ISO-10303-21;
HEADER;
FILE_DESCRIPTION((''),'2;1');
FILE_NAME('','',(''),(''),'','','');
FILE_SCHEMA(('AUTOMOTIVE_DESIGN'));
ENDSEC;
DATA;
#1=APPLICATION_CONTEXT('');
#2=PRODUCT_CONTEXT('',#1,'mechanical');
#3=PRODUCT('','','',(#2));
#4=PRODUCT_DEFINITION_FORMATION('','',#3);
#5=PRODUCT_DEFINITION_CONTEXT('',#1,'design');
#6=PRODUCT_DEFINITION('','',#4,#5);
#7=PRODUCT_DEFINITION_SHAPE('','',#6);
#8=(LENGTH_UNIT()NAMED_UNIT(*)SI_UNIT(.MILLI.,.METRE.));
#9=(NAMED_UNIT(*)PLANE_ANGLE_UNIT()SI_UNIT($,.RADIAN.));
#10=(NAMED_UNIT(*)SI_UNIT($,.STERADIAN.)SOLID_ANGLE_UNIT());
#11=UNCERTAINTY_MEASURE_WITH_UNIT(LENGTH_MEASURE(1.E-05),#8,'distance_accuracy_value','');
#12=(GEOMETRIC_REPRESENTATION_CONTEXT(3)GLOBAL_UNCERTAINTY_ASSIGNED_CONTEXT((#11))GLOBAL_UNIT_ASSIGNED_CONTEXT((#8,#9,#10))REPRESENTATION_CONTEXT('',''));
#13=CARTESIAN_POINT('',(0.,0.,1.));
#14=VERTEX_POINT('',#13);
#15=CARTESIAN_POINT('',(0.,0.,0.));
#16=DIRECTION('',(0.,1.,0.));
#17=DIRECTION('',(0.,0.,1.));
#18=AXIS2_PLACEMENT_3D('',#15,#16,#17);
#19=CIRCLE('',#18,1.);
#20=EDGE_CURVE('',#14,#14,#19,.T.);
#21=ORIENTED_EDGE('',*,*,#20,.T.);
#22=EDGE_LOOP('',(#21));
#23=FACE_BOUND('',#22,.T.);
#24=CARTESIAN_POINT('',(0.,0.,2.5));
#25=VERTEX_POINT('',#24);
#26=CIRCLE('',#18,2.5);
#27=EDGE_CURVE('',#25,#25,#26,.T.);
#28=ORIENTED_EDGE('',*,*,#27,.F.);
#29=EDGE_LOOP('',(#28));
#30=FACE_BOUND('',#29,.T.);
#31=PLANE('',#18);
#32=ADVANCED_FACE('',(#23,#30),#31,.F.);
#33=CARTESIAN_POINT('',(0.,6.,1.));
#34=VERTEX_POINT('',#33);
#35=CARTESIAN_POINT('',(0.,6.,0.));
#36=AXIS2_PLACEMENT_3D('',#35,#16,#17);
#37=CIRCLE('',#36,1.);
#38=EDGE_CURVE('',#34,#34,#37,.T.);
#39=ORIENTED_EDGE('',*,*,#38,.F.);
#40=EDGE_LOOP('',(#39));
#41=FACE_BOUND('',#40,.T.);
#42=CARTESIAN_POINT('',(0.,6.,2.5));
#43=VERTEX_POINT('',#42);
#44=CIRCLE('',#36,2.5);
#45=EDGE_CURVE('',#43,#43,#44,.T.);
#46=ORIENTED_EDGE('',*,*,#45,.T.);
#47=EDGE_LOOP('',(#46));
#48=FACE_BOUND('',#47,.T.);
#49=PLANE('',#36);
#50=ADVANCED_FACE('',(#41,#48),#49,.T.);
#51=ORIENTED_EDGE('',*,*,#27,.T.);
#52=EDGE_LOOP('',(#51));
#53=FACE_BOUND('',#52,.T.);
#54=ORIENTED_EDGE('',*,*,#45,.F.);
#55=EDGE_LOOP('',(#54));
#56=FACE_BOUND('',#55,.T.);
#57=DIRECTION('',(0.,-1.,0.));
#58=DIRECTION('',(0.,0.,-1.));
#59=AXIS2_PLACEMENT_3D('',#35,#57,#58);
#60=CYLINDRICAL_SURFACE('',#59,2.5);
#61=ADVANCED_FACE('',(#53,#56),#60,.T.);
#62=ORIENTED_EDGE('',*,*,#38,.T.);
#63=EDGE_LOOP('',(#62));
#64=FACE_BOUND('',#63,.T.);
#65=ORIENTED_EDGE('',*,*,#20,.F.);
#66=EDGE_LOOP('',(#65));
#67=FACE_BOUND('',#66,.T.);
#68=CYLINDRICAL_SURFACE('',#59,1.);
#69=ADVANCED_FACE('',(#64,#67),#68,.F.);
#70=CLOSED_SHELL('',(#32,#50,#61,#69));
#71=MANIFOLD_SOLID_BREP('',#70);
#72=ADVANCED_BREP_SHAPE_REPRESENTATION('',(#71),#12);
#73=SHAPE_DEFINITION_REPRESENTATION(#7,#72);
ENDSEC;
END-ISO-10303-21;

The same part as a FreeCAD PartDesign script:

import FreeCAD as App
import Part
import Sketcher
from FreeCAD import Vector

doc = App.newDocument("Part")
params = doc.addObject("Spreadsheet::Sheet", "Params")
for row, (alias, value) in enumerate([
    ("sketch1_diameter", "5 mm"),
    ("sketch1_diameter2", "2 mm"),
    ("pad1_length", "6 mm"),
], start=1):
    params.set(f"A{row}", alias)
    params.set(f"B{row}", "=" + value)
    params.setAlias(f"B{row}", alias)

body = doc.addObject("PartDesign::Body", "Body")

# Sketch on XZ plane
sketch1 = body.newObject("Sketcher::SketchObject", "Sketch")
sketch1.AttachmentSupport = (doc.getObject("XZ_Plane"), [""])
sketch1.MapMode = "FlatFace"
sketch1.addGeometry([
    Part.Circle(Vector(0, 0, 0), Vector(0, 0, 1), 2.5),
    Part.Circle(Vector(0, 0, 0), Vector(0, 0, 1), 1),
], False)
sketch1.addConstraint([
    Sketcher.Constraint("Coincident", 0, 3, -1, 1),
    Sketcher.Constraint("Coincident", 1, 3, -1, 1),
    Sketcher.Constraint("Diameter", 0, 5.0),
    Sketcher.Constraint("Diameter", 1, 2.0),
])
sketch1.setExpression("Constraints[2]", "Params.sketch1_diameter")
sketch1.setExpression("Constraints[3]", "Params.sketch1_diameter2")
pad1 = body.newObject("PartDesign::Pad", "Pad")
pad1.Profile = sketch1
pad1.setExpression("Length", "Params.pad1_length")
pad1.Reversed = True

doc.recompute()
